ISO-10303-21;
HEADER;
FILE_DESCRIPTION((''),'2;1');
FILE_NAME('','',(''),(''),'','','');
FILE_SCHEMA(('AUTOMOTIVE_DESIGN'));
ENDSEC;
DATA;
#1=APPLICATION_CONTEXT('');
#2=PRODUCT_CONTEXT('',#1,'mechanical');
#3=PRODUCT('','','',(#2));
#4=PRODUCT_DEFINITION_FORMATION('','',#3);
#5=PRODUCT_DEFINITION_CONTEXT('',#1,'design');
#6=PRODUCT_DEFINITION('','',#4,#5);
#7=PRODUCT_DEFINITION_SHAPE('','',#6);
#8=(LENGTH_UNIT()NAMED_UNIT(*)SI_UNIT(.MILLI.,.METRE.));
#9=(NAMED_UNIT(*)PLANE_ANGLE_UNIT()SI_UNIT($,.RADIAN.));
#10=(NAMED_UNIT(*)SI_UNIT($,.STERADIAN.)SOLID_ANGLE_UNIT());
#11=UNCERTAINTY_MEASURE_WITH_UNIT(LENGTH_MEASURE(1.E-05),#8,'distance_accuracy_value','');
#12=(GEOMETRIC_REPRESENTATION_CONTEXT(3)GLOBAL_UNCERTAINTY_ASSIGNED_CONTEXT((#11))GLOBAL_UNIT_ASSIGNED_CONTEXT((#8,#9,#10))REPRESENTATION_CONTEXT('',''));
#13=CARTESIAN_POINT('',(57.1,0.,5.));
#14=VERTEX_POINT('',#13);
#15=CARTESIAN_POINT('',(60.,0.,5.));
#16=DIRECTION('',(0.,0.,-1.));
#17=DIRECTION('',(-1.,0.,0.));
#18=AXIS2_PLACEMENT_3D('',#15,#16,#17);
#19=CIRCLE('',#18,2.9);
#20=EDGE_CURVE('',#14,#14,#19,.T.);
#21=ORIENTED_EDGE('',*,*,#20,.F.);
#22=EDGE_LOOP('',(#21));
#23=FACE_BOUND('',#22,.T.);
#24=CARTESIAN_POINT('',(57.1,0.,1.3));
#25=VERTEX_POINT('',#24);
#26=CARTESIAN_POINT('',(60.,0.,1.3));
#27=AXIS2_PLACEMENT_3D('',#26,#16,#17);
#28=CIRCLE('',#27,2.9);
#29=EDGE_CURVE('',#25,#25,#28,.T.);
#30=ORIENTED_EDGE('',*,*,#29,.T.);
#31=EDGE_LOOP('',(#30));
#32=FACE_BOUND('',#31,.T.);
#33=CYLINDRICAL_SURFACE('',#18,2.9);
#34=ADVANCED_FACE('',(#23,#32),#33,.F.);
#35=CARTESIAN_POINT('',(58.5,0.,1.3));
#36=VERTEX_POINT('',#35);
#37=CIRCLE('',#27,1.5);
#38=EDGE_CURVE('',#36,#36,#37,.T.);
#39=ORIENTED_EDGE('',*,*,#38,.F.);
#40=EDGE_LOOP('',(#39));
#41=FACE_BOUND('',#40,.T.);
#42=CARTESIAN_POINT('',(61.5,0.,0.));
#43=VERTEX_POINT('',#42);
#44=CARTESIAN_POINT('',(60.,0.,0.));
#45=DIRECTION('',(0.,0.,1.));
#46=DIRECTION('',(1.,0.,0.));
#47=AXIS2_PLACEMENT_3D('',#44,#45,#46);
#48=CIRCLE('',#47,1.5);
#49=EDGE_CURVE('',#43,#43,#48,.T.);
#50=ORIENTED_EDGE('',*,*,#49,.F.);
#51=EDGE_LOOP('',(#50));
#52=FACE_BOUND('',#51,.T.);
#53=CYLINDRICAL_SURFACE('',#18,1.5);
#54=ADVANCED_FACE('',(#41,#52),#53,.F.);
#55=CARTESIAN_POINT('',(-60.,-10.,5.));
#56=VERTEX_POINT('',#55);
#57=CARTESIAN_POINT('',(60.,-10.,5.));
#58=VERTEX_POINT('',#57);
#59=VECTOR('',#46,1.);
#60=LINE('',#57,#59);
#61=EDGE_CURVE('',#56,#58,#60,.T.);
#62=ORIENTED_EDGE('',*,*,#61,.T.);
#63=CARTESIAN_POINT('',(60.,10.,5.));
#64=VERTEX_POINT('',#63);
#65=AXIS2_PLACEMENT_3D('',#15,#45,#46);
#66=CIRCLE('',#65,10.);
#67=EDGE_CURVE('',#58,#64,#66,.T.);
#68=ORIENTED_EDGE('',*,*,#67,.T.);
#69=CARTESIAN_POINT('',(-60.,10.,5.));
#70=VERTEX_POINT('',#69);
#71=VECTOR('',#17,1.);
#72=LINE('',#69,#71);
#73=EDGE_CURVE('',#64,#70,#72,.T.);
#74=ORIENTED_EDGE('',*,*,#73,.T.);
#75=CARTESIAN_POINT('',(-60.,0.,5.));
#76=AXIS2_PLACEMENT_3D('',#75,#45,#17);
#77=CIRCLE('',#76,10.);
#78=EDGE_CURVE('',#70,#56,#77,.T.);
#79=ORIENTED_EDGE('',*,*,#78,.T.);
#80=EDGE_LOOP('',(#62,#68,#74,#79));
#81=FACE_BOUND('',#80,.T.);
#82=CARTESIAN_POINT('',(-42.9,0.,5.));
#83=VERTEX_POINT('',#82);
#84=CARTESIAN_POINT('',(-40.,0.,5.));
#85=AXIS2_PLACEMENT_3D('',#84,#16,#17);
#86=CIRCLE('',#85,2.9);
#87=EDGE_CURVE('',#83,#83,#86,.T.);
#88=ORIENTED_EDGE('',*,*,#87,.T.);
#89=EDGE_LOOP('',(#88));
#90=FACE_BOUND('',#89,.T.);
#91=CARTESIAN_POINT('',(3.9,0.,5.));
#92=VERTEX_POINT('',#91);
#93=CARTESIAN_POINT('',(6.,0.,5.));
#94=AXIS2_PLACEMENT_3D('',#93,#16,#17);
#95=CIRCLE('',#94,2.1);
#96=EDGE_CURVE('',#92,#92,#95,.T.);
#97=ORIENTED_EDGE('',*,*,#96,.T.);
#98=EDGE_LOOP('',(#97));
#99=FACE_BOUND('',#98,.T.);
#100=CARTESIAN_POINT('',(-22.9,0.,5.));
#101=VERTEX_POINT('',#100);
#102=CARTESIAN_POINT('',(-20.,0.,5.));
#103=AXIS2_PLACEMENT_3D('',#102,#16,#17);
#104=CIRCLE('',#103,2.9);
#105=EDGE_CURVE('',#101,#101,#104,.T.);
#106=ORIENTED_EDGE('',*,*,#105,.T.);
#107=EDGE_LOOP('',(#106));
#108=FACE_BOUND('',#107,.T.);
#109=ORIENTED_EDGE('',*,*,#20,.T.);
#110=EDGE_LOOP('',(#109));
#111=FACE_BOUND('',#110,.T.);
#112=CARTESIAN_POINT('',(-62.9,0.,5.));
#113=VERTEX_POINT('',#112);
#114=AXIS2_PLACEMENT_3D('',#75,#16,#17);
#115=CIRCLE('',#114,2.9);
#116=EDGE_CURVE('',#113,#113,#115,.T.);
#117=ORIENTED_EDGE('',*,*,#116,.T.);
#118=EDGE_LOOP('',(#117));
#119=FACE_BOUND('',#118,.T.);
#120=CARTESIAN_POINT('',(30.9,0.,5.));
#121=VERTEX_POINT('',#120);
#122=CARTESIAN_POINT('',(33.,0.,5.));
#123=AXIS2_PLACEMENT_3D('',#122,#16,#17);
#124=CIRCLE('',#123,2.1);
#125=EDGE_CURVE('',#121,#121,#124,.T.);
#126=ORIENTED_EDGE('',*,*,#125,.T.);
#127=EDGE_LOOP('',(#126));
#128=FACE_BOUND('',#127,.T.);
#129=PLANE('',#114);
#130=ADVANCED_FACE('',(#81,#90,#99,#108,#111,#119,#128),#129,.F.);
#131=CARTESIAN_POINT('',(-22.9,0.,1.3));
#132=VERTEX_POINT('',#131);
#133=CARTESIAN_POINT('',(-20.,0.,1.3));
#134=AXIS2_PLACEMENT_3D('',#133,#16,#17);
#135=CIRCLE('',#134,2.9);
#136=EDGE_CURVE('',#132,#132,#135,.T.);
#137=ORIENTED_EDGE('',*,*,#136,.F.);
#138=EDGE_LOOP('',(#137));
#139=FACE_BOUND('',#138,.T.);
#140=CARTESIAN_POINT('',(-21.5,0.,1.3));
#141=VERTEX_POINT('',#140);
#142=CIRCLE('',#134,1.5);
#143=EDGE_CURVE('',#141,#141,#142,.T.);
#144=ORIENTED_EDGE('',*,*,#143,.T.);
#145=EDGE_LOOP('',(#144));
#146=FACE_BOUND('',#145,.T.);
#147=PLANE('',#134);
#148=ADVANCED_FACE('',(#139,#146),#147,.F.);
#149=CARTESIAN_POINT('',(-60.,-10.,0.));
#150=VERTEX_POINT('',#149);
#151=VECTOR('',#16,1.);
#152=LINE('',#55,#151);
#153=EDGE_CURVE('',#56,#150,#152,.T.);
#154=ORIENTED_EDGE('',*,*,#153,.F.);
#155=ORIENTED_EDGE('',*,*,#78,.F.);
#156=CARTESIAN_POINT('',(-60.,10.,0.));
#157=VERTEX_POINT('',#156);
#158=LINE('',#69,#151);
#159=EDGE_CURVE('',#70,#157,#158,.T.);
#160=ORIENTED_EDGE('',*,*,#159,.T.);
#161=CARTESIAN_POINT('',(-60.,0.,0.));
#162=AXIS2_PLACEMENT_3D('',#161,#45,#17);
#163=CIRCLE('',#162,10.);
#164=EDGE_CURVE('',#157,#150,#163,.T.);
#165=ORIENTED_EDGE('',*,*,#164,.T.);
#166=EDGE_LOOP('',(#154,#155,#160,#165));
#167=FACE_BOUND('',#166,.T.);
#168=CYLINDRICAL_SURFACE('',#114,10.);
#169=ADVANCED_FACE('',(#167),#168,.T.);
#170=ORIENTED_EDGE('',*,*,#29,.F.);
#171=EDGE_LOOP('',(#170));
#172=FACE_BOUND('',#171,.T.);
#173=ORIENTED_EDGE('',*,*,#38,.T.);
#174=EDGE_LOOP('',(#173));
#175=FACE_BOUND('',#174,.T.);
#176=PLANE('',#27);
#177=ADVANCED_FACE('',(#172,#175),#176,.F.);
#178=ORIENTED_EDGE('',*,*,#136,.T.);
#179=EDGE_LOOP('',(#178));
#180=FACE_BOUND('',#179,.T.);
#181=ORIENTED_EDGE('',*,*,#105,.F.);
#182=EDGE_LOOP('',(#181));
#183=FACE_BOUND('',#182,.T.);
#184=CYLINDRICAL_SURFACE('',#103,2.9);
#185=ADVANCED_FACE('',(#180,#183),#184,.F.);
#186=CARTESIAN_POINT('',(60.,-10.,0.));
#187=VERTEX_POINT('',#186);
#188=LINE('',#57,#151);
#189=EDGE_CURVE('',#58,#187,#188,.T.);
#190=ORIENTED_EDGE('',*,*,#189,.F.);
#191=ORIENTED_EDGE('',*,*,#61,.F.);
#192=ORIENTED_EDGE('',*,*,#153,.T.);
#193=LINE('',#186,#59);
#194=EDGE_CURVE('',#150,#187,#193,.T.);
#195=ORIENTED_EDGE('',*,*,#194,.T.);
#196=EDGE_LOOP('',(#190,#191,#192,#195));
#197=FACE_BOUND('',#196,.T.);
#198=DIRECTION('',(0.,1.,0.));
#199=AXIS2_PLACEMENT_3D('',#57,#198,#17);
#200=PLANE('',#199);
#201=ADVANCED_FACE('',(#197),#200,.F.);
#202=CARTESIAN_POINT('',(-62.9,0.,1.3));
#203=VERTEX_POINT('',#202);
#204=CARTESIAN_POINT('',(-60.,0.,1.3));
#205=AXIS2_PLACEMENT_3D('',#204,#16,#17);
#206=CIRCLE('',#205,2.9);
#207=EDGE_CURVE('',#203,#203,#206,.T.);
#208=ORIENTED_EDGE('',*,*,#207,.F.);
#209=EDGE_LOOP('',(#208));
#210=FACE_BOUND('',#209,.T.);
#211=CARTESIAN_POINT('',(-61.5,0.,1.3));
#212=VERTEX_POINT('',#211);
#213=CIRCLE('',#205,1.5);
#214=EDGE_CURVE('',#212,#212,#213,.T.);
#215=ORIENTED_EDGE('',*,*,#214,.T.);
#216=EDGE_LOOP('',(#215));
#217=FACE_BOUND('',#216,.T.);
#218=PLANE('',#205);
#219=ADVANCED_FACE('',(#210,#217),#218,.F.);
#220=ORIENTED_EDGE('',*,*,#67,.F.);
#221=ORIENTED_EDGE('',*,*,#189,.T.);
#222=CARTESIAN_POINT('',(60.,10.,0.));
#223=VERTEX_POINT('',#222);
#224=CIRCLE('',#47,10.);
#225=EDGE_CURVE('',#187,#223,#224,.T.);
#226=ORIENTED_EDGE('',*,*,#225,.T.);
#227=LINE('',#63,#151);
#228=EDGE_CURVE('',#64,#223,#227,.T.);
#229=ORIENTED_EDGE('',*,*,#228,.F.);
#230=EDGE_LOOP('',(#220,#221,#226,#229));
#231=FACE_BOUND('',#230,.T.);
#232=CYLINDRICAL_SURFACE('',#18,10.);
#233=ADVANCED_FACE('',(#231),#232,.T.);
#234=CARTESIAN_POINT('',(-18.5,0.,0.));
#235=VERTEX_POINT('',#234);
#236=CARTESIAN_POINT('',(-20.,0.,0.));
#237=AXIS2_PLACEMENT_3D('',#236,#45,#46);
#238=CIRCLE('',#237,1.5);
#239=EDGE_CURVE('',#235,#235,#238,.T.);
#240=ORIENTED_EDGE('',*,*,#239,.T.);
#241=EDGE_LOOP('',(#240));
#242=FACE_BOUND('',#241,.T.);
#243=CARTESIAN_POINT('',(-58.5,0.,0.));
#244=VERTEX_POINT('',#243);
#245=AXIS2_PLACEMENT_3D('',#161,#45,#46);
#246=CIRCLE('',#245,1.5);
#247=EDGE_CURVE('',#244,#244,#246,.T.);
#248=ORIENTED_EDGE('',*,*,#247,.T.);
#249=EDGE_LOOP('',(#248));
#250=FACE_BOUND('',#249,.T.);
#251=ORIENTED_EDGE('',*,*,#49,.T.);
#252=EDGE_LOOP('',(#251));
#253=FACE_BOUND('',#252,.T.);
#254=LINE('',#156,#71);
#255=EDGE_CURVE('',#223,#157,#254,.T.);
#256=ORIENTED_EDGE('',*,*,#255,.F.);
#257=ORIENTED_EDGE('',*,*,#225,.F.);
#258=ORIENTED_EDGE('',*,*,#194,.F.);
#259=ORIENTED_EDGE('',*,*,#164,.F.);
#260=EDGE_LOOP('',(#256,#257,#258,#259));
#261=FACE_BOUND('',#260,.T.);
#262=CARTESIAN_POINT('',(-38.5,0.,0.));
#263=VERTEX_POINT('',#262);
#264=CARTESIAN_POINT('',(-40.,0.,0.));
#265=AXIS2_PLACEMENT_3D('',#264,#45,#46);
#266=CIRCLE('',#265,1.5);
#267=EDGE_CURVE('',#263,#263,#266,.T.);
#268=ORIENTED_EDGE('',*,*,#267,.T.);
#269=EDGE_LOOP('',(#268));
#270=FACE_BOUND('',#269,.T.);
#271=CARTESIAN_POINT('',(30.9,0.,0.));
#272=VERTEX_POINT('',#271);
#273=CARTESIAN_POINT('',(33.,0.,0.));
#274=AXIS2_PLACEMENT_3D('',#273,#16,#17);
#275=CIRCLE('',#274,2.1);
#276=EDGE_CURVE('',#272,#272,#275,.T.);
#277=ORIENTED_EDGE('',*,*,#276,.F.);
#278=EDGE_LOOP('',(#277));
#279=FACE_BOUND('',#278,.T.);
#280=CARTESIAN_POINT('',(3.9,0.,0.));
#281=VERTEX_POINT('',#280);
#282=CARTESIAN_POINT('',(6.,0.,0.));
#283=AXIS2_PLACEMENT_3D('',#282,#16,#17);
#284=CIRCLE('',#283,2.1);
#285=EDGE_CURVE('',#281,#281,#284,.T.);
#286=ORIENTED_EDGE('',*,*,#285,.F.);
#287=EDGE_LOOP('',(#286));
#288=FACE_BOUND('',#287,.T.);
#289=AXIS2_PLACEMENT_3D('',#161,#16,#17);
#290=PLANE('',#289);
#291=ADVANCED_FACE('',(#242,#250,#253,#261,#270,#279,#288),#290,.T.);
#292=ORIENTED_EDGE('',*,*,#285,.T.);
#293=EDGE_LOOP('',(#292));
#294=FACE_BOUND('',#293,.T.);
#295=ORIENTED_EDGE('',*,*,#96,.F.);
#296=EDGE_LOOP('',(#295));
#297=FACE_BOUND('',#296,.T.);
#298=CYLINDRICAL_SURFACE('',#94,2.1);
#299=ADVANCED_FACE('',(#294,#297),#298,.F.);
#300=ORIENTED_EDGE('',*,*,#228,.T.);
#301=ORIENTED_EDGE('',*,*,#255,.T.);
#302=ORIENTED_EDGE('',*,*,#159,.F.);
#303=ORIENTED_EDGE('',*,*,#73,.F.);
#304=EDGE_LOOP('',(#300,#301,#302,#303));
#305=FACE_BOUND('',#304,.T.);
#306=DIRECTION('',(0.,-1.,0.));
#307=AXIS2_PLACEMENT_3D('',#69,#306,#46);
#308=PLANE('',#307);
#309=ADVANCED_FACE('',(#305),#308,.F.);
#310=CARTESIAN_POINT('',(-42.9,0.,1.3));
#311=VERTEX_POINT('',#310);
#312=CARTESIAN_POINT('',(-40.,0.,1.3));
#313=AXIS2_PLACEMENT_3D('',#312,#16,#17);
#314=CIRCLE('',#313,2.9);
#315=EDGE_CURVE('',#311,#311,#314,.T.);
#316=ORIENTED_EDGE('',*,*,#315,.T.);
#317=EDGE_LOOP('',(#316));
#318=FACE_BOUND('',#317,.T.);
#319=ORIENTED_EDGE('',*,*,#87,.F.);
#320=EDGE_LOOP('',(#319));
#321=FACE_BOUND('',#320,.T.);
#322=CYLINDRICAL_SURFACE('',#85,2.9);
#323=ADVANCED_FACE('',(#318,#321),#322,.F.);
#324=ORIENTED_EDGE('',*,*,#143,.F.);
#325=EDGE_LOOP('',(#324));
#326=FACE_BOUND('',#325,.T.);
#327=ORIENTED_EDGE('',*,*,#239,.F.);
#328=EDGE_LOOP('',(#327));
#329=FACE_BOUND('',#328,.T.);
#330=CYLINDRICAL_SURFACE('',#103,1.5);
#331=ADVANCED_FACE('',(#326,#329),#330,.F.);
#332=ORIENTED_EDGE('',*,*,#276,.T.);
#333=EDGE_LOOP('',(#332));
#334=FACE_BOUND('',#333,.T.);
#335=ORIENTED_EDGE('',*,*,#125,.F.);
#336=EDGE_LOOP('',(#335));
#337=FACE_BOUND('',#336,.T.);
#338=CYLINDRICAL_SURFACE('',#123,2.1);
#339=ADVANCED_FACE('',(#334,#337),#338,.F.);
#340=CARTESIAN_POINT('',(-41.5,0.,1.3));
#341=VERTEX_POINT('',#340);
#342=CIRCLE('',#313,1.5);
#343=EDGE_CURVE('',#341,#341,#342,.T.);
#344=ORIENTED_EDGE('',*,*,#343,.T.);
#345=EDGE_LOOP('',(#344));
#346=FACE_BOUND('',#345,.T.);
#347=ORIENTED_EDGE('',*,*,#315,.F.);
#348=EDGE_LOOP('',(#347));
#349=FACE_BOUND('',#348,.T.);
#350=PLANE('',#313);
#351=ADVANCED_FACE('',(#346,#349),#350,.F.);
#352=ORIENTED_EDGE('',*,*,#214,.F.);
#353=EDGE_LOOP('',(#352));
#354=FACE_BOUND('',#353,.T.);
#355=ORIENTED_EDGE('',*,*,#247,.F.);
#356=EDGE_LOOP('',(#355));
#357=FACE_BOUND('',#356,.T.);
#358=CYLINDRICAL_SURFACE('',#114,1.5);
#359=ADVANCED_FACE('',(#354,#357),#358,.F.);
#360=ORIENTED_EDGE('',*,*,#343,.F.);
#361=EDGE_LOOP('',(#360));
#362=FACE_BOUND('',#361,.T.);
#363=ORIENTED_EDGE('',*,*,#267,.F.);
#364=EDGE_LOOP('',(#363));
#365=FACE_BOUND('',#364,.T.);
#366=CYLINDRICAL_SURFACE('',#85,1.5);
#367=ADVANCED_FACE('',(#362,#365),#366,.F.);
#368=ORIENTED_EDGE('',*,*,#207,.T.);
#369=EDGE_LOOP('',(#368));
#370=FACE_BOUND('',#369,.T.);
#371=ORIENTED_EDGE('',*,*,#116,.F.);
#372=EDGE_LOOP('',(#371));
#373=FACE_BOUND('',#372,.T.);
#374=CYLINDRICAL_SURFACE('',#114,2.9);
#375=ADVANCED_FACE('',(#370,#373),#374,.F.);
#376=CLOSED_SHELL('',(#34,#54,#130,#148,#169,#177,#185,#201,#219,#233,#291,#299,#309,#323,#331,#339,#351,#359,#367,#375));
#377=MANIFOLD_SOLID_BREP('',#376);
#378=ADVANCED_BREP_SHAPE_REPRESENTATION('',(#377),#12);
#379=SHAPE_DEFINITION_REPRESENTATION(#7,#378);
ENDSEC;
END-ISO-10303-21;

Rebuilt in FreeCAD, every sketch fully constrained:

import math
import FreeCAD as App
import Part
import Sketcher
from FreeCAD import Vector

doc = App.newDocument("Part")
params = doc.addObject("Spreadsheet::Sheet", "Params")
for row, (alias, value) in enumerate([
    ("sketch1_diameter", "3 mm"),
    ("sketch1_radius", "10 mm"),
    ("sketch1_width", "120 mm"),
    ("pad1_length", "5 mm"),
    ("sketch2_diameter", "5.8 mm"),
    ("sketch3_diameter", "4.2 mm"),
], start=1):
    params.set(f"A{row}", alias)
    params.set(f"B{row}", "=" + value)
    params.setAlias(f"B{row}", alias)

body = doc.addObject("PartDesign::Body", "Body")

sketch1 = body.newObject("Sketcher::SketchObject", "Sketch")
sketch1.AttachmentSupport = (doc.getObject("XY_Plane"), [""])
sketch1.MapMode = "FlatFace"
sketch1.addGeometry([
    Part.LineSegment(Vector(60, 10, 0), Vector(-60, 10, 0)),
    Part.ArcOfCircle(Part.Circle(Vector(-60, 0, 0), Vector(0, 0, 1), 10), math.radians(90), math.radians(270)),
    Part.LineSegment(Vector(-60, -10, 0), Vector(60, -10, 0)),
    Part.ArcOfCircle(Part.Circle(Vector(60, 0, 0), Vector(0, 0, 1), 10), math.radians(-90), math.radians(90)),
    Part.Circle(Vector(60, 0, 0), Vector(0, 0, 1), 1.5),
    Part.Circle(Vector(-20, 0, 0), Vector(0, 0, 1), 1.5),
    Part.Circle(Vector(-40, 0, 0), Vector(0, 0, 1), 1.5),
    Part.Circle(Vector(-60, 0, 0), Vector(0, 0, 1), 1.5),
], False)
sketch1.addConstraint([
    Sketcher.Constraint("Tangent", 0, 2, 1, 1),
    Sketcher.Constraint("Tangent", 1, 2, 2, 1),
    Sketcher.Constraint("Tangent", 2, 2, 3, 1),
    Sketcher.Constraint("Tangent", 3, 2, 0, 1),
    Sketcher.Constraint("Horizontal", 0),
    Sketcher.Constraint("Horizontal", 2),
    Sketcher.Constraint("Coincident", 4, 3, 3, 3),
    Sketcher.Constraint("Coincident", 7, 3, 1, 3),
    Sketcher.Constraint("Equal", 4, 5),
    Sketcher.Constraint("Equal", 5, 6),
    Sketcher.Constraint("Equal", 6, 7),
    Sketcher.Constraint("Symmetric", 1, 3, 3, 3, -1, 1),
    Sketcher.Constraint("PointOnObject", 5, 3, -1),
    Sketcher.Constraint("PointOnObject", 6, 3, -1),
    Sketcher.Constraint("Diameter", 4, 3.0),
    Sketcher.Constraint("Radius", 1, 10.0),
    Sketcher.Constraint("DistanceX", 0, 2, 0, 1, 120.0),
    Sketcher.Constraint("DistanceX", 5, 3, -1, 1, 20.0),
    Sketcher.Constraint("DistanceX", 6, 3, -1, 1, 40.0),
])
sketch1.setExpression("Constraints[14]", "Params.sketch1_diameter")
sketch1.setExpression("Constraints[15]", "Params.sketch1_radius")
sketch1.setExpression("Constraints[16]", "Params.sketch1_width")
pad1 = body.newObject("PartDesign::Pad", "Pad")
pad1.Profile = sketch1
pad1.setExpression("Length", "Params.pad1_length")

sketch2 = body.newObject("Sketcher::SketchObject", "Sketch001")
sketch2.AttachmentSupport = (doc.getObject("XY_Plane"), [""])
sketch2.MapMode = "FlatFace"
sketch2.AttachmentOffset = App.Placement(Vector(0, 0, 1.3), App.Rotation())
sketch2.addGeometry([
    Part.Circle(Vector(60, 0, 0), Vector(0, 0, 1), 2.9),
    Part.Circle(Vector(-60, 0, 0), Vector(0, 0, 1), 2.9),
    Part.Circle(Vector(-20, 0, 0), Vector(0, 0, 1), 2.9),
    Part.Circle(Vector(-40, 0, 0), Vector(0, 0, 1), 2.9),
], False)
sketch2.addConstraint([
    Sketcher.Constraint("Equal", 0, 1),
    Sketcher.Constraint("Equal", 1, 2),
    Sketcher.Constraint("Equal", 2, 3),
    Sketcher.Constraint("Symmetric", 0, 3, 1, 3, -1, 1),
    Sketcher.Constraint("PointOnObject", 0, 3, -1),
    Sketcher.Constraint("PointOnObject", 2, 3, -1),
    Sketcher.Constraint("PointOnObject", 3, 3, -1),
    Sketcher.Constraint("Diameter", 0, 5.8),
    Sketcher.Constraint("DistanceX", -1, 1, 0, 3, 60.0),
    Sketcher.Constraint("DistanceX", 2, 3, -1, 1, 20.0),
    Sketcher.Constraint("DistanceX", 3, 3, -1, 1, 40.0),
])
sketch2.setExpression("Constraints[7]", "Params.sketch2_diameter")
pocket1 = body.newObject("PartDesign::Pocket", "Pocket")
pocket1.Profile = sketch2
pocket1.Type = "ThroughAll"
pocket1.Reversed = True

sketch3 = body.newObject("Sketcher::SketchObject", "Sketch002")
sketch3.AttachmentSupport = (doc.getObject("XY_Plane"), [""])
sketch3.MapMode = "FlatFace"
sketch3.addGeometry([
    Part.Circle(Vector(6, 0, 0), Vector(0, 0, 1), 2.1),
    Part.Circle(Vector(33, 0, 0), Vector(0, 0, 1), 2.1),
], False)
sketch3.addConstraint([
    Sketcher.Constraint("Equal", 0, 1),
    Sketcher.Constraint("PointOnObject", 0, 3, -1),
    Sketcher.Constraint("PointOnObject", 1, 3, -1),
    Sketcher.Constraint("Diameter", 0, 4.2),
    Sketcher.Constraint("DistanceX", -1, 1, 0, 3, 6.0),
    Sketcher.Constraint("DistanceX", -1, 1, 1, 3, 33.0),
])
sketch3.setExpression("Constraints[3]", "Params.sketch3_diameter")
pocket2 = body.newObject("PartDesign::Pocket", "Pocket001")
pocket2.Profile = sketch3
pocket2.Type = "ThroughAll"
pocket2.Reversed = True

doc.recompute()
